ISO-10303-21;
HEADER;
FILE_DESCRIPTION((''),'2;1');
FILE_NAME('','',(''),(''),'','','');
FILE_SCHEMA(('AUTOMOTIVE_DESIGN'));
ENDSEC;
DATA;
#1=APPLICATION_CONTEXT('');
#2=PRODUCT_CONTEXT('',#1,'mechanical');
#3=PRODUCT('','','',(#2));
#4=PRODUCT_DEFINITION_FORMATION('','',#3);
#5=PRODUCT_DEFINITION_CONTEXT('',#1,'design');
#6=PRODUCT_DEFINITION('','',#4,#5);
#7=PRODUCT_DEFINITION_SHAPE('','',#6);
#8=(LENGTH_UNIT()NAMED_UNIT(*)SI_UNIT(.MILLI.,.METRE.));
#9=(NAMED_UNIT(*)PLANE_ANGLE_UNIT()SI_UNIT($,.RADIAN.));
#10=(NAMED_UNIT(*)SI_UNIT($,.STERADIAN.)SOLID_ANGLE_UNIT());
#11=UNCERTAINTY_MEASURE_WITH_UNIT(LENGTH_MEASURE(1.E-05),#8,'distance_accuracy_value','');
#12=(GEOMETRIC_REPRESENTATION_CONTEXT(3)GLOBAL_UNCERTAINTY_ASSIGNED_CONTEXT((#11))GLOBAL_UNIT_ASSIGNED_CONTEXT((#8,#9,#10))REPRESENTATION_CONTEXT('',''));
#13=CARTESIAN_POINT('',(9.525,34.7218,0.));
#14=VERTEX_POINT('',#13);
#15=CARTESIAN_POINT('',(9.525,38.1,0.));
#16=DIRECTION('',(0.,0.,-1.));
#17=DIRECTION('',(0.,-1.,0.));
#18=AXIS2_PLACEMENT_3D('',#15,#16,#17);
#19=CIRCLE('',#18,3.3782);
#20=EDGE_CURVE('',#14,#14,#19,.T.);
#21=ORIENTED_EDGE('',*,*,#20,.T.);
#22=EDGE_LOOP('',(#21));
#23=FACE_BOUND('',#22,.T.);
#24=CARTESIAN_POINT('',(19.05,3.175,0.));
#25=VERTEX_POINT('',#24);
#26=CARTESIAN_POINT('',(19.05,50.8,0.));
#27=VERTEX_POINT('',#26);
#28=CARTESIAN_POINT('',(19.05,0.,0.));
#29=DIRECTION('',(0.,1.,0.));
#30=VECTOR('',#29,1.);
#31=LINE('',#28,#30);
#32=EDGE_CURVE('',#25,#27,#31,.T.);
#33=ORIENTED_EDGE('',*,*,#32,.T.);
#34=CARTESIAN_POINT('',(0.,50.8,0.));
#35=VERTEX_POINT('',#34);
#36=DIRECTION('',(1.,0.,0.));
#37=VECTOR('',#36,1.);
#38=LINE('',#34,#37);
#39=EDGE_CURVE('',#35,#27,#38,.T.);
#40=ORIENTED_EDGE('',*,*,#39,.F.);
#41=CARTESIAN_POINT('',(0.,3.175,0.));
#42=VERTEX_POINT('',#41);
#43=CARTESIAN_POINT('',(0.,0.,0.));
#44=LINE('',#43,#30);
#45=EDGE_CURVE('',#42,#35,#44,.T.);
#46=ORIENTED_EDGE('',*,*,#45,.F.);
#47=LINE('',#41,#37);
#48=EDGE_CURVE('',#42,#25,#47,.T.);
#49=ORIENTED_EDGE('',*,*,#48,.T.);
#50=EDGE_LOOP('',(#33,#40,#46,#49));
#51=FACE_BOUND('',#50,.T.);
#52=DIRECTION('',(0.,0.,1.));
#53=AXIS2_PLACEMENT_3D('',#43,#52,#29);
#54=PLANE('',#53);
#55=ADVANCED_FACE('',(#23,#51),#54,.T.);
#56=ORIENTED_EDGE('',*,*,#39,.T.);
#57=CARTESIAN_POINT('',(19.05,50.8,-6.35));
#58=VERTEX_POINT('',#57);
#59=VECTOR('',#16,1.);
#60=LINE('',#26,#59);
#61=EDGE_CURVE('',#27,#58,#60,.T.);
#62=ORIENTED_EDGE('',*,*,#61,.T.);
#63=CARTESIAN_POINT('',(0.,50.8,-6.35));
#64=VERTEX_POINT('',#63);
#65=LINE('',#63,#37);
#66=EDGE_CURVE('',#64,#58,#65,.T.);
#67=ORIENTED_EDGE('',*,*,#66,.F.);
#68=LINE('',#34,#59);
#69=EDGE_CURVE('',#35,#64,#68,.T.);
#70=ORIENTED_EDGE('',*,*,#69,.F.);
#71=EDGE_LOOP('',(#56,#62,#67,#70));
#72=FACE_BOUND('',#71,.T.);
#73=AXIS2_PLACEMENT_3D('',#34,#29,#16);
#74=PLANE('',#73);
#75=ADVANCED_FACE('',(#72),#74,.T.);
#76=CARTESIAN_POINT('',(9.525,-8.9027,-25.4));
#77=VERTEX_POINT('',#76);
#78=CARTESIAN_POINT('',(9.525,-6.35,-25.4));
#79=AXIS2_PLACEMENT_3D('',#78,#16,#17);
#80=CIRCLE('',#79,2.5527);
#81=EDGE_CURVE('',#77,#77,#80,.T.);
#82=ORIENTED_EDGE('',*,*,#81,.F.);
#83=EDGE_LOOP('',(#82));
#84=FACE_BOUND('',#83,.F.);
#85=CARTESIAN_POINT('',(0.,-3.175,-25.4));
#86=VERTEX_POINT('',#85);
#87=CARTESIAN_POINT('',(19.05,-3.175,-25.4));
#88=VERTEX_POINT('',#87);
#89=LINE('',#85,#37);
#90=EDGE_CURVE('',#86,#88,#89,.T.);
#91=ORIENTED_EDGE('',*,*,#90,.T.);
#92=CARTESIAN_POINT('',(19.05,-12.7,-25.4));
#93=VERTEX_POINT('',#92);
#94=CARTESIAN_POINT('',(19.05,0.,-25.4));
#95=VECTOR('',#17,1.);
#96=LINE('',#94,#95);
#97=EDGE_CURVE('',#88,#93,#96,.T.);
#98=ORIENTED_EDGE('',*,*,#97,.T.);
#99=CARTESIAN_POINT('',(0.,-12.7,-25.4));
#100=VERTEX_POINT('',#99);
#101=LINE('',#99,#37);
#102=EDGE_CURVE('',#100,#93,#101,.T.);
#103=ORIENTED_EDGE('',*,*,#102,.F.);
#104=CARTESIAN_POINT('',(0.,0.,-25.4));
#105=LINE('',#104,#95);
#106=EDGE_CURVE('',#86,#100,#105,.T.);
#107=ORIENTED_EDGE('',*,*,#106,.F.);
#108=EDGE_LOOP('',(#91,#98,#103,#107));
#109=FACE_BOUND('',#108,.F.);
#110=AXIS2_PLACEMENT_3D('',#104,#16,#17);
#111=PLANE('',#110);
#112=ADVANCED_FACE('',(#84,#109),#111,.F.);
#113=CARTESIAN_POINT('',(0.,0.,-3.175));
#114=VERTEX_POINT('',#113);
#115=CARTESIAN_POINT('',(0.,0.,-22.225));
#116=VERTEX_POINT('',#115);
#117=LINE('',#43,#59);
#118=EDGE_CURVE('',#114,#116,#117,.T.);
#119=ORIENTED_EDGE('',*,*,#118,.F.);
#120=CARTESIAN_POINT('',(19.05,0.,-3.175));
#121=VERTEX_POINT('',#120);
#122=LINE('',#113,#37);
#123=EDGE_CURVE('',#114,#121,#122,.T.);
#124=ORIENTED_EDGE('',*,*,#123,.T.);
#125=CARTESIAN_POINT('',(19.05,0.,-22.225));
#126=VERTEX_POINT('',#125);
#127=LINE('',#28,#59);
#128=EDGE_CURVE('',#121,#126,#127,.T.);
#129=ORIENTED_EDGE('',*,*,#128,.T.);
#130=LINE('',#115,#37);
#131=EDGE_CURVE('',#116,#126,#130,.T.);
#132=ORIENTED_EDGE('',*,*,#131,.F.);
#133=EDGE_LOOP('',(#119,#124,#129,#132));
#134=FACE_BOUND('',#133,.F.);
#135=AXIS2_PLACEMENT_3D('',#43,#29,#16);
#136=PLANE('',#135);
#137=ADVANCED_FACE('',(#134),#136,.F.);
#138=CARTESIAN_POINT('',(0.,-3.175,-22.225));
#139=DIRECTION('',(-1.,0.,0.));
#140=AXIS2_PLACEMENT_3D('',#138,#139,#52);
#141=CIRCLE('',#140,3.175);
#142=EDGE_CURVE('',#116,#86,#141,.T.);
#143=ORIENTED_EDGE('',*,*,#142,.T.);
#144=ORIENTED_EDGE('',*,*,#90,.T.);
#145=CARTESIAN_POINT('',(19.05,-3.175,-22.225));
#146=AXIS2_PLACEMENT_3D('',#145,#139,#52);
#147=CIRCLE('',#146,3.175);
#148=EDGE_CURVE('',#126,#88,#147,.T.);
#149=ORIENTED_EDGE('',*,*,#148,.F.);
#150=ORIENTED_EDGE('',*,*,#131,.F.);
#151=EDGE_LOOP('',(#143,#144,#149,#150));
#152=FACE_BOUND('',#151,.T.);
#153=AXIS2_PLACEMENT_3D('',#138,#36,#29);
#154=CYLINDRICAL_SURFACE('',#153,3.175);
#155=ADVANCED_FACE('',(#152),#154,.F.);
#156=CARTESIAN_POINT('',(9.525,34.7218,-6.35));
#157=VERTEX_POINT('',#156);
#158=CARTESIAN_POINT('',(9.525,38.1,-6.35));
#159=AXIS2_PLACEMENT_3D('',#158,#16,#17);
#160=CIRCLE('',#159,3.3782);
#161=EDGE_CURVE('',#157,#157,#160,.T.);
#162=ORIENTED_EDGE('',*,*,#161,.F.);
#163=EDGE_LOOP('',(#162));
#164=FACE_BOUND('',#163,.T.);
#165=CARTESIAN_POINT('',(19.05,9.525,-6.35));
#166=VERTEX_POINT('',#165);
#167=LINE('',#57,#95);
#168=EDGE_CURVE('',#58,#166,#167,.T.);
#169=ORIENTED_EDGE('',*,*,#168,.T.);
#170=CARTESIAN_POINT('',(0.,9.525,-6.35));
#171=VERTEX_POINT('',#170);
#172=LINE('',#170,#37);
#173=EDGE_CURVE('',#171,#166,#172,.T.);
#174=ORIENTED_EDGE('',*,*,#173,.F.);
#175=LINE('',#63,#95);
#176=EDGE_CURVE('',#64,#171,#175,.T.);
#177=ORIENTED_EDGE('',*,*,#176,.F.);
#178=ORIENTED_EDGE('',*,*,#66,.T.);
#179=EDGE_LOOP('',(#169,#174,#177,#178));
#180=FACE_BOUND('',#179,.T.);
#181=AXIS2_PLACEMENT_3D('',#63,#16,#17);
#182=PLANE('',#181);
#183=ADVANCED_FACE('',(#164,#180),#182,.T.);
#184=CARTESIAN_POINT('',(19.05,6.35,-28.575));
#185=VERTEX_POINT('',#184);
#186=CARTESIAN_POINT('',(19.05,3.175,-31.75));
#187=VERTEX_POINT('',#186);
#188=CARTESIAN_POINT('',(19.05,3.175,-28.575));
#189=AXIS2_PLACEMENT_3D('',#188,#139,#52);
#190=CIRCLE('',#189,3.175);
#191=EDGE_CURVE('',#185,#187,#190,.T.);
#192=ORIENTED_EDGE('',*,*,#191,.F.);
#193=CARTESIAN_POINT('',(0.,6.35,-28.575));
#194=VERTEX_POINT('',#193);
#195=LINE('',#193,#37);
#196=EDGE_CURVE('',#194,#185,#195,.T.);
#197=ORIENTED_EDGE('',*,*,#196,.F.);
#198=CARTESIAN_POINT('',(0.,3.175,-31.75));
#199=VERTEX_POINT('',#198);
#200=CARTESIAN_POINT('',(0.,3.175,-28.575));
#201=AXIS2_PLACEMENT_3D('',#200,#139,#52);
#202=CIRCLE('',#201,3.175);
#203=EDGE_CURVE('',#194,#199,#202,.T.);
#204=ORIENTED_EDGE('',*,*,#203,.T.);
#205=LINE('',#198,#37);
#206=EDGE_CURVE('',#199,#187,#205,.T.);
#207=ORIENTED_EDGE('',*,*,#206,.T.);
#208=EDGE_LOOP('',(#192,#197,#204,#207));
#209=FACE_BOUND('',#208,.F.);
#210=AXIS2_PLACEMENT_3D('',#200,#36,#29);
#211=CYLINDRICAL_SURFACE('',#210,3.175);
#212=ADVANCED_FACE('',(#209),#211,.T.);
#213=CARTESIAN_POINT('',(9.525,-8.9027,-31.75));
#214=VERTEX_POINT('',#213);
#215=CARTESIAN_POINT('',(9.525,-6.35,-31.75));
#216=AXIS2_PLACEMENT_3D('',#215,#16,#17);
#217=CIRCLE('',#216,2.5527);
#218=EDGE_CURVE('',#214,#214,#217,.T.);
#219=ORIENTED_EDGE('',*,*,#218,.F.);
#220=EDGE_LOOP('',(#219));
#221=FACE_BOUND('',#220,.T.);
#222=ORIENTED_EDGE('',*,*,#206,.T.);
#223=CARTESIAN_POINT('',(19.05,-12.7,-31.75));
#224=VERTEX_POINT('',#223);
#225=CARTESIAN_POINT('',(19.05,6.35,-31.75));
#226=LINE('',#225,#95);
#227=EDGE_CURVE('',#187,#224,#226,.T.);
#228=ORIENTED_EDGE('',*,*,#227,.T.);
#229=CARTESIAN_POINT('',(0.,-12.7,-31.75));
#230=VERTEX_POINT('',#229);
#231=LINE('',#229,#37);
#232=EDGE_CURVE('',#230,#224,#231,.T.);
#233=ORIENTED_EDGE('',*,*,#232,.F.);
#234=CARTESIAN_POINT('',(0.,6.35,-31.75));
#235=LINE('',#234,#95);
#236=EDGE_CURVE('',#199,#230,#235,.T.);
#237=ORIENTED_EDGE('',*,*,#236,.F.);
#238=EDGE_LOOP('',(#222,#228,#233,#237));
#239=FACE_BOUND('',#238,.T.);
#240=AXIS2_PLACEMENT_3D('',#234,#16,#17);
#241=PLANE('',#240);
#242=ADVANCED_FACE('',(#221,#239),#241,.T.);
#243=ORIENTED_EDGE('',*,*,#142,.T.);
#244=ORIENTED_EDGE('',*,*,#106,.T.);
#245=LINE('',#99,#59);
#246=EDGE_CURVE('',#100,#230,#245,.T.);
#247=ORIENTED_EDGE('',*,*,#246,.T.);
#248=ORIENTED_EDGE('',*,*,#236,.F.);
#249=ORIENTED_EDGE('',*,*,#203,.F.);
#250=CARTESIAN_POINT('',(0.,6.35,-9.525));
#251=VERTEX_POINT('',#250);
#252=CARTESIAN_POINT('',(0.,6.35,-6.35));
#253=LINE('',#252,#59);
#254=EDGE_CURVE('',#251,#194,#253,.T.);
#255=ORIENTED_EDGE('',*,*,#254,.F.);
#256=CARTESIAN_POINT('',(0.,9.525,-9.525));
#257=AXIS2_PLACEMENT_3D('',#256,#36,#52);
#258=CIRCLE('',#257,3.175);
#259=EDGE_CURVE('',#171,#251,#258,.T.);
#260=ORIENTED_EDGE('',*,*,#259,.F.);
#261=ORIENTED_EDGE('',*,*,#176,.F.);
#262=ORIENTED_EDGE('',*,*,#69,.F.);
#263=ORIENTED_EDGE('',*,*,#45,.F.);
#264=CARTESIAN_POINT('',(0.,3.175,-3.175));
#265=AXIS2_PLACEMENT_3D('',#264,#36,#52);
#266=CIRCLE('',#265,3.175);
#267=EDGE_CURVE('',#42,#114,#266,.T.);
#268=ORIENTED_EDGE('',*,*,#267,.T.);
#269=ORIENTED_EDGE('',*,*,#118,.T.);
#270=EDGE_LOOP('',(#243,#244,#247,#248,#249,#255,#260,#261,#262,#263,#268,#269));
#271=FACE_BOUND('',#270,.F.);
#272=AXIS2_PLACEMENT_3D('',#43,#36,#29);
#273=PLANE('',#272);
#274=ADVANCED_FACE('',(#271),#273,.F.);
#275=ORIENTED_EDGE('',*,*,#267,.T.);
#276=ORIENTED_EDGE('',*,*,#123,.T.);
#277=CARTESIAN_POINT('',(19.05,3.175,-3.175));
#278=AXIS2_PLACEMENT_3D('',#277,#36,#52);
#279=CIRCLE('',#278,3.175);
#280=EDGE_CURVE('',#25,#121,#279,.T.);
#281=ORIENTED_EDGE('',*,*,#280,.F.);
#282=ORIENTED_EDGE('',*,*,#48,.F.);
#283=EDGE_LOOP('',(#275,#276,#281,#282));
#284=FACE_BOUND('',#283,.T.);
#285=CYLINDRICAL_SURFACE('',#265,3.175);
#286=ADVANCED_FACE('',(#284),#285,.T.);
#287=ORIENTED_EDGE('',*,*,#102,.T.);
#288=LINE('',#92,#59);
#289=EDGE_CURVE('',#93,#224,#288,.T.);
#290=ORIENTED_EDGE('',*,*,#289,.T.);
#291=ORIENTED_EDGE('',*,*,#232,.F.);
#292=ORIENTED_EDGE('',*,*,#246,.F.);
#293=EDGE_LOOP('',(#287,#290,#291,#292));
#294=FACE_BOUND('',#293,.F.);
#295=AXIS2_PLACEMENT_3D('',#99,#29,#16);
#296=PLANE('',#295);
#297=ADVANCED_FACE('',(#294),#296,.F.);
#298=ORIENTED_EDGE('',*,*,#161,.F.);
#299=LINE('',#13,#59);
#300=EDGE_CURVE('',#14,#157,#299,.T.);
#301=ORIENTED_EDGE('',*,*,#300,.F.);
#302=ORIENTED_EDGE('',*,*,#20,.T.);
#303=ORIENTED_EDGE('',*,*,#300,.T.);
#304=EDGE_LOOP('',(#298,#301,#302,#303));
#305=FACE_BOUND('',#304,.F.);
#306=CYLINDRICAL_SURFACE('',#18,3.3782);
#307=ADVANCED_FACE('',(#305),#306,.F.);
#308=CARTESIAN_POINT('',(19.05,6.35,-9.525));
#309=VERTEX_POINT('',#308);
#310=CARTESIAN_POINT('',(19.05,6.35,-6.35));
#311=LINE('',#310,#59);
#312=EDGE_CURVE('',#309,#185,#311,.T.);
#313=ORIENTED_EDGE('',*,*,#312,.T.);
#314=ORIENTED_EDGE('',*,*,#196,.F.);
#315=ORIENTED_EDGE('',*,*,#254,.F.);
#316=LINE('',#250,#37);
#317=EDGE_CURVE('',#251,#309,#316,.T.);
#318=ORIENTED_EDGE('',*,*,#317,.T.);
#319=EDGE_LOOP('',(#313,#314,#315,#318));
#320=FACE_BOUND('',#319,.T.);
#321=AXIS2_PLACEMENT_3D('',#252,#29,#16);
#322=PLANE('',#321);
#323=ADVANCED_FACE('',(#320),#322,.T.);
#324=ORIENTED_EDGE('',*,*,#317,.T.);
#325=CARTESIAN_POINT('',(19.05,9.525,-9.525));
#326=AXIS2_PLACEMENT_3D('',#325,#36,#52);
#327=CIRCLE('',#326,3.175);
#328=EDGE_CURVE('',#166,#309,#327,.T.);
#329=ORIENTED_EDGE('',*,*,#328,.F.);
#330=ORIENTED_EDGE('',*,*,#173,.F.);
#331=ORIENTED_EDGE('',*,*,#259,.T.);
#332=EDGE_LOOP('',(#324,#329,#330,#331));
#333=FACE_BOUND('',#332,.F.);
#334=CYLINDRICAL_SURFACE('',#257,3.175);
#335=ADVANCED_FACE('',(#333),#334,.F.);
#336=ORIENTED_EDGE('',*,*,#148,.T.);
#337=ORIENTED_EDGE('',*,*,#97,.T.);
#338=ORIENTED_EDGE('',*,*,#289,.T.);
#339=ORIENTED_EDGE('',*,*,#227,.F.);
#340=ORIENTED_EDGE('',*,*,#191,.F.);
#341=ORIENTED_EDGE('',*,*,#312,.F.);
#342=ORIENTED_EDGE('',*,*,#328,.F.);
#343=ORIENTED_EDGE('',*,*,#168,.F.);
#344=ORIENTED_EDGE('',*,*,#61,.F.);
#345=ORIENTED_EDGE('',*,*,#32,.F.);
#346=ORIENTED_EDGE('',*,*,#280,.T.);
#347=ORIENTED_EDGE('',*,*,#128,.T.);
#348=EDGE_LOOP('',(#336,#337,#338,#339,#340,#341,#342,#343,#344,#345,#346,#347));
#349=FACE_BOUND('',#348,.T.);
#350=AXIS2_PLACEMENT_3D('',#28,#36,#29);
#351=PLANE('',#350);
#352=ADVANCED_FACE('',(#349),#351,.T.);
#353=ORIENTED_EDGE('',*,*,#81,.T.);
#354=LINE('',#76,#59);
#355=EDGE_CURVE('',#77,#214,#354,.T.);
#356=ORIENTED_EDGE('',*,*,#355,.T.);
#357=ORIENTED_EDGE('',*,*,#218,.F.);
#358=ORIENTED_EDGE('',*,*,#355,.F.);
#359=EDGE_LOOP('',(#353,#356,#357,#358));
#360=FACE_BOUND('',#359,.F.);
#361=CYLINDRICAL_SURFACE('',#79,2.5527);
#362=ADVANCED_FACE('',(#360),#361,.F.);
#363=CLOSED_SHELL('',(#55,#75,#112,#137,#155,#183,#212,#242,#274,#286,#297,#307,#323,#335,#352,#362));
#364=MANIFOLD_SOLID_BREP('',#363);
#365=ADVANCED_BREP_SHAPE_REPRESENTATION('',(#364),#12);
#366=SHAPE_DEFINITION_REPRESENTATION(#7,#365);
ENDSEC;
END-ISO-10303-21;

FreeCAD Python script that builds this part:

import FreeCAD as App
import Part
import Sketcher

V = App.Vector
Q = App.Units.Quantity


def edges_at(feature, points):
    """Names of the edges that pass closest to the given points."""
    edges = feature.Shape.Edges
    near = lambda p: min(range(len(edges)), key=lambda i: edges[i].distToShape(Part.Vertex(*p))[0])
    return sorted({f"Edge{near(p) + 1}" for p in points})

doc = App.newDocument("Part")
body = doc.addObject("PartDesign::Body", "Body")

sketch1 = body.newObject("Sketcher::SketchObject", "Sketch")
sketch1.AttachmentSupport = (doc.getObject("YZ_Plane"), [""])
sketch1.MapMode = "FlatFace"
sketch1.addGeometry(Part.LineSegment(V(50.8, 0, 0), V(0, 0, 0)), False)
sketch1.addGeometry(Part.LineSegment(V(0, 0, 0), V(0, -25.4, 0)), False)
sketch1.addGeometry(Part.LineSegment(V(0, -25.4, 0), V(-12.7, -25.4, 0)), False)
sketch1.addGeometry(Part.LineSegment(V(-12.7, -25.4, 0), V(-12.7, -31.75, 0)), False)
sketch1.addGeometry(Part.LineSegment(V(-12.7, -31.75, 0), V(6.35, -31.75, 0)), False)
sketch1.addGeometry(Part.LineSegment(V(6.35, -31.75, 0), V(6.35, -6.35, 0)), False)
sketch1.addGeometry(Part.LineSegment(V(6.35, -6.35, 0), V(50.8, -6.35, 0)), False)
sketch1.addGeometry(Part.LineSegment(V(50.8, -6.35, 0), V(50.8, 0, 0)), False)
sketch1.addConstraint(Sketcher.Constraint("Coincident", 0, 2, 1, 1))
sketch1.addConstraint(Sketcher.Constraint("Coincident", 1, 2, 2, 1))
sketch1.addConstraint(Sketcher.Constraint("Coincident", 2, 2, 3, 1))
sketch1.addConstraint(Sketcher.Constraint("Coincident", 3, 2, 4, 1))
sketch1.addConstraint(Sketcher.Constraint("Coincident", 4, 2, 5, 1))
sketch1.addConstraint(Sketcher.Constraint("Coincident", 5, 2, 6, 1))
sketch1.addConstraint(Sketcher.Constraint("Coincident", 6, 2, 7, 1))
sketch1.addConstraint(Sketcher.Constraint("Coincident", 7, 2, 0, 1))
sketch1.addConstraint(Sketcher.Constraint("Horizontal", 0))
sketch1.addConstraint(Sketcher.Constraint("Vertical", 1))
sketch1.addConstraint(Sketcher.Constraint("Horizontal", 2))
sketch1.addConstraint(Sketcher.Constraint("Vertical", 3))
sketch1.addConstraint(Sketcher.Constraint("Horizontal", 4))
sketch1.addConstraint(Sketcher.Constraint("Vertical", 5))
sketch1.addConstraint(Sketcher.Constraint("Horizontal", 6))
sketch1.addConstraint(Sketcher.Constraint("Vertical", 7))
sketch1.addConstraint(Sketcher.Constraint("Coincident", 0, 2, -1, 1))
sketch1.addConstraint(Sketcher.Constraint("Equal", 1, 5))
sketch1.addConstraint(Sketcher.Constraint("DistanceX", 0, 2, 0, 1, Q("2 in")))
sketch1.addConstraint(Sketcher.Constraint("DistanceY", 1, 2, 1, 1, Q("1 in")))
sketch1.addConstraint(Sketcher.Constraint("DistanceX", 2, 2, 2, 1, Q("0.5 in")))
sketch1.addConstraint(Sketcher.Constraint("DistanceY", 3, 2, 3, 1, Q("0.25 in")))
sketch1.addConstraint(Sketcher.Constraint("DistanceX", -1, 1, 4, 2, Q("0.25 in")))
pad1 = body.newObject("PartDesign::Pad", "Pad")
pad1.Profile = sketch1
pad1.Length = Q("0.75 in")

sketch2 = body.newObject("Sketcher::SketchObject", "Sketch001")
sketch2.AttachmentSupport = (doc.getObject("XY_Plane"), [""])
sketch2.MapMode = "FlatFace"
sketch2.addGeometry(Part.Circle(V(9.525, 38.1, 0), V(0, 0, 1), 3.3782), False)
sketch2.addConstraint(Sketcher.Constraint("Diameter", 0, Q("0.266 in")))
sketch2.addConstraint(Sketcher.Constraint("DistanceY", -1, 1, 0, 3, Q("1.5 in")))
sketch2.addConstraint(Sketcher.Constraint("DistanceX", -1, 1, 0, 3, Q("0.375 in")))
doc.recompute()
hole = body.newObject("PartDesign::Hole", "Hole")
hole.Profile = sketch2
hole.ThreadType = "None"
hole.Diameter = Q("0.266 in")
hole.DepthType = "ThroughAll"

sketch3 = body.newObject("Sketcher::SketchObject", "Sketch002")
sketch3.AttachmentSupport = (doc.getObject("XY_Plane"), [""])
sketch3.MapMode = "FlatFace"
sketch3.AttachmentOffset = App.Placement(V(0, 0, -1 * 25.4), App.Rotation())
sketch3.addGeometry(Part.Circle(V(9.525, -6.35, 0), V(0, 0, 1), 2.5527), False)
sketch3.addConstraint(Sketcher.Constraint("Diameter", 0, Q("0.201 in")))
sketch3.addConstraint(Sketcher.Constraint("DistanceY", 0, 3, -1, 1, Q("0.25 in")))
sketch3.addConstraint(Sketcher.Constraint("DistanceX", -1, 1, 0, 3, Q("0.375 in")))
doc.recompute()
hole2 = body.newObject("PartDesign::Hole", "Hole001")
hole2.Profile = sketch3
hole2.ThreadType = "None"
hole2.Diameter = Q("0.201 in")
hole2.DepthType = "ThroughAll"
doc.recompute()

fillet = body.newObject("PartDesign::Fillet", "Fillet")
fillet.Base = (hole2, edges_at(hole2, [
    (9.525, 6.35, -6.35),
    (9.525, 0, -25.4),
    (9.525, 6.35, -31.75),
    (9.525, 0, 0),
]))
fillet.Radius = Q("0.125 in")

doc.recompute()
